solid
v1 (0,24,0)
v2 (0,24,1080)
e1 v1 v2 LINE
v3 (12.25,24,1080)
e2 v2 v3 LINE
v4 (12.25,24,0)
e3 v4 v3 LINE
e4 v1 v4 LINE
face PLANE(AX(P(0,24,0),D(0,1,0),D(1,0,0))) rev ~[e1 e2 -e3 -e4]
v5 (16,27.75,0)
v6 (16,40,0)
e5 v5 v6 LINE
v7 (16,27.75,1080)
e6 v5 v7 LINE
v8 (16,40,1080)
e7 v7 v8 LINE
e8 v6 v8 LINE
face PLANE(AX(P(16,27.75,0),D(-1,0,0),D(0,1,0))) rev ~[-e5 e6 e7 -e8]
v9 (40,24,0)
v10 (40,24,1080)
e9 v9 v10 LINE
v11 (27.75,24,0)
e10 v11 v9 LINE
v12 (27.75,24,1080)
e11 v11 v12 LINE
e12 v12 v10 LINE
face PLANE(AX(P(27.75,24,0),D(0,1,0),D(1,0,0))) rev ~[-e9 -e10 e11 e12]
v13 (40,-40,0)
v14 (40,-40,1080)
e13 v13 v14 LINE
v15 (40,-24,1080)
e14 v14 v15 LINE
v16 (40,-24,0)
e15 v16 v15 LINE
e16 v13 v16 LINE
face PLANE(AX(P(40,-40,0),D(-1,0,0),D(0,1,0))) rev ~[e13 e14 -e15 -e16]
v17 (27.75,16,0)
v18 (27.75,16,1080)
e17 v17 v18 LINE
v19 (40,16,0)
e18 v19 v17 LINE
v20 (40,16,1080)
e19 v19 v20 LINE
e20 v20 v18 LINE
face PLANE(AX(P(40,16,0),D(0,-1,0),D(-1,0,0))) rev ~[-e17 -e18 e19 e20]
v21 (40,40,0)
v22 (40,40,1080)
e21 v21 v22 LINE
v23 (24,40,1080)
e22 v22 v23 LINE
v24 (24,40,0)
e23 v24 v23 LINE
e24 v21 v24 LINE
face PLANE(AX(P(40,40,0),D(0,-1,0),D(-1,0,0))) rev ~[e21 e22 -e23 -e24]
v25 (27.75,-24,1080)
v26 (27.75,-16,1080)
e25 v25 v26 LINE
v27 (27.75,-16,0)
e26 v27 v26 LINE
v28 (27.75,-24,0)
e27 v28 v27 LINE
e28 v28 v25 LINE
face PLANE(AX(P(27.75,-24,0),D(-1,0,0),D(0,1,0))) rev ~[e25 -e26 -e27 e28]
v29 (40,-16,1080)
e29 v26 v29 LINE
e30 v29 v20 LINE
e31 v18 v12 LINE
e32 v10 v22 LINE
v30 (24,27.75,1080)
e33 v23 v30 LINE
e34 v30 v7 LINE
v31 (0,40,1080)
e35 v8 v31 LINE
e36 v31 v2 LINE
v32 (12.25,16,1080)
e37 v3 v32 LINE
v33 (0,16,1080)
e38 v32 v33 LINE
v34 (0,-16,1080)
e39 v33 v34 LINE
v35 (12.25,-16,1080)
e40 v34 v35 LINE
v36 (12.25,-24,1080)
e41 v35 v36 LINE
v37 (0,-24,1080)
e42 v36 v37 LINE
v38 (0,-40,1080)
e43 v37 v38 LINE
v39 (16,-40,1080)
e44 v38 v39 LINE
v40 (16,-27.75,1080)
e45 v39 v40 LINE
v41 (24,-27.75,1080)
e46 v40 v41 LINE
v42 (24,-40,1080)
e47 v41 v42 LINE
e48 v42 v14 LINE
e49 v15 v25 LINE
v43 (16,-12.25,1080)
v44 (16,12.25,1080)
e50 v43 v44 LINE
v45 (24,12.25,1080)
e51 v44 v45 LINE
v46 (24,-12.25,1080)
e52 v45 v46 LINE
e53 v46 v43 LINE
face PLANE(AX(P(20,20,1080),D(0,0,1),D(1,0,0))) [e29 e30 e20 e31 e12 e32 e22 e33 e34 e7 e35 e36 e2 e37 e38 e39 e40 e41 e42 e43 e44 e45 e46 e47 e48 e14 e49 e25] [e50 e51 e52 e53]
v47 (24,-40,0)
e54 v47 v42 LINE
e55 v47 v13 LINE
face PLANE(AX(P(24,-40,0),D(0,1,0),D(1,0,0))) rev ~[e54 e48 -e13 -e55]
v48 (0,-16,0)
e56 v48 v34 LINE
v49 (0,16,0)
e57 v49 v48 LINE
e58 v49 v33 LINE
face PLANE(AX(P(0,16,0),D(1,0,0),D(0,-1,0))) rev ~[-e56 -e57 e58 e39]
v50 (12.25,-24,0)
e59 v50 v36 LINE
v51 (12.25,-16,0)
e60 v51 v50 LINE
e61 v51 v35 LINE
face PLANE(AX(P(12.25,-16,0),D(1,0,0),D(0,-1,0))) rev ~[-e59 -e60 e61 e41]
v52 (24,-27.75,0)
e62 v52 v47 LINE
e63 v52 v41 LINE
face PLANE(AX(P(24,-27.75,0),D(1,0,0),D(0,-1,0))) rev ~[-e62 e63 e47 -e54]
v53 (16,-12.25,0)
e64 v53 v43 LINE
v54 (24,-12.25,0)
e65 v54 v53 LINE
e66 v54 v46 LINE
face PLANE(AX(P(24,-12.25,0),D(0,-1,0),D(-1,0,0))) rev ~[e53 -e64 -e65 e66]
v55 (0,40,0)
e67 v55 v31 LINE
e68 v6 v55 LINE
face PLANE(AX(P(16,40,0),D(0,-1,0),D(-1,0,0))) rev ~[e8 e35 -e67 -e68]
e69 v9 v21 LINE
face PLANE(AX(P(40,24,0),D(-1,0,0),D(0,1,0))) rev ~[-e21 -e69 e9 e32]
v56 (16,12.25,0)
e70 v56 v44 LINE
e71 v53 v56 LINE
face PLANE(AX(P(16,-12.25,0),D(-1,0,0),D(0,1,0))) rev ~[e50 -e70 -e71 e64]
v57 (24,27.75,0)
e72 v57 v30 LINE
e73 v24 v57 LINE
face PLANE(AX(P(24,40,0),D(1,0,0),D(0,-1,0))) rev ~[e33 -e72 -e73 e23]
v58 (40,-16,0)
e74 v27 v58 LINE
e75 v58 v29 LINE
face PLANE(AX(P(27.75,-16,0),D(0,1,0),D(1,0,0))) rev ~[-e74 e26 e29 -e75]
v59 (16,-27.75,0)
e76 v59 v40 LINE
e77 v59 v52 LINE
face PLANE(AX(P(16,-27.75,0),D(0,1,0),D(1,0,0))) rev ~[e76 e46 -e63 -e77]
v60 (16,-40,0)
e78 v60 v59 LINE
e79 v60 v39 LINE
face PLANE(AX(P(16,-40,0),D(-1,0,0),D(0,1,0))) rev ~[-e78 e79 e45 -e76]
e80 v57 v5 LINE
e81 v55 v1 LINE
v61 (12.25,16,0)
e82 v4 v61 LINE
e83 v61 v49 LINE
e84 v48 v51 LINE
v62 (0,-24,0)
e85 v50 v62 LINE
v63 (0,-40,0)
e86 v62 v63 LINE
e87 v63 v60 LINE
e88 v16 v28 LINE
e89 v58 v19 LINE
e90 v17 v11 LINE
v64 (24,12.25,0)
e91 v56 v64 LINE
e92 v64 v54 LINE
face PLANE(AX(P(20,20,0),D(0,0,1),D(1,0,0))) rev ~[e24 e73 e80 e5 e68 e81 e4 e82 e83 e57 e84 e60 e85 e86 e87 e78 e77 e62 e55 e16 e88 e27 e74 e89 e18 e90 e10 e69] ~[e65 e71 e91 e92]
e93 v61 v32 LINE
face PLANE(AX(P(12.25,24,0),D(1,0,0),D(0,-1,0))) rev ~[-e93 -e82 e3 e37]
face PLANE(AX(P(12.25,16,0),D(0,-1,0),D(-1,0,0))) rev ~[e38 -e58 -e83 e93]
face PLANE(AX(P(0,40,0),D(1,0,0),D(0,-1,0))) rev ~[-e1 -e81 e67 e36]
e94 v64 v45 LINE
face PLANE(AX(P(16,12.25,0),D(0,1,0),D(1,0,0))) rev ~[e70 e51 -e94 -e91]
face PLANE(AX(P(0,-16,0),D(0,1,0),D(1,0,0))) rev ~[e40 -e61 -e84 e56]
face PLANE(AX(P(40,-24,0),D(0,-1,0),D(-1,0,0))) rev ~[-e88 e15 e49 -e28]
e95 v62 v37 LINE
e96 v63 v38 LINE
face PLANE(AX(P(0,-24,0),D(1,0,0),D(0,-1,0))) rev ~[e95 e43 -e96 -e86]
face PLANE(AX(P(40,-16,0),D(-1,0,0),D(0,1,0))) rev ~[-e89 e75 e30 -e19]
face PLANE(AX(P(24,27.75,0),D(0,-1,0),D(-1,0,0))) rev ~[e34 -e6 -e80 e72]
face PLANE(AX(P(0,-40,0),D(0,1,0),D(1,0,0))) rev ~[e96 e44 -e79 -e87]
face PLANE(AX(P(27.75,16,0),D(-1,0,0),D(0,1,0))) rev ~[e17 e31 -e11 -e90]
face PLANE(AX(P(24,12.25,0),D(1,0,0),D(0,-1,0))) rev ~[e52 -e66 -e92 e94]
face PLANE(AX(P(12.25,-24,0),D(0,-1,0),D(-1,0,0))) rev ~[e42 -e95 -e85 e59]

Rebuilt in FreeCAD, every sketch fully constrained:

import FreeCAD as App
import Part
import Sketcher
from FreeCAD import Vector


def add_polygon(sketch, points):
    """Adds a closed chain of lines whose ends are joined by coincident constraints."""
    first, n = sketch.GeometryCount, len(points)
    for a, b in zip(points, points[1:] + points[:1]):
        sketch.addGeometry(Part.LineSegment(App.Vector(*a, 0), App.Vector(*b, 0)), False)
    for i in range(n):
        sketch.addConstraint(Sketcher.Constraint("Coincident", first + i, 2, first + (i + 1) % n, 1))

doc = App.newDocument("Part")
body = doc.addObject("PartDesign::Body", "Body")

# Sketch on XY plane
sketch1 = body.newObject("Sketcher::SketchObject", "Sketch")
sketch1.AttachmentSupport = (doc.getObject("XY_Plane"), [""])
sketch1.MapMode = "FlatFace"
add_polygon(sketch1, [(0, 16), (0, -16), (12, -16), (12, -24), (0, -24), (0, -40), (16, -40), (16, -28), (24, -28), (24, -40), (40, -40), (40, -24), (28, -24), (28, -16), (40, -16), (40, 16), (28, 16), (28, 24), (40, 24), (40, 40), (24, 40), (24, 28), (16, 28), (16, 40), (0, 40), (0, 24), (12, 24), (12, 16)])  # lines 0-27
add_polygon(sketch1, [(16, 12), (24, 12), (24, -12), (16, -12)])  # lines 28-31
sketch1.addConstraint(Sketcher.Constraint("Vertical", 0))
sketch1.addConstraint(Sketcher.Constraint("Horizontal", 1))
sketch1.addConstraint(Sketcher.Constraint("Vertical", 2))
sketch1.addConstraint(Sketcher.Constraint("Horizontal", 3))
sketch1.addConstraint(Sketcher.Constraint("Vertical", 4))
sketch1.addConstraint(Sketcher.Constraint("Horizontal", 5))
sketch1.addConstraint(Sketcher.Constraint("Vertical", 6))
sketch1.addConstraint(Sketcher.Constraint("Horizontal", 7))
sketch1.addConstraint(Sketcher.Constraint("Vertical", 8))
sketch1.addConstraint(Sketcher.Constraint("Horizontal", 9))
sketch1.addConstraint(Sketcher.Constraint("Vertical", 10))
sketch1.addConstraint(Sketcher.Constraint("Horizontal", 11))
sketch1.addConstraint(Sketcher.Constraint("Vertical", 12))
sketch1.addConstraint(Sketcher.Constraint("Horizontal", 13))
sketch1.addConstraint(Sketcher.Constraint("Vertical", 14))
sketch1.addConstraint(Sketcher.Constraint("Horizontal", 15))
sketch1.addConstraint(Sketcher.Constraint("Vertical", 16))
sketch1.addConstraint(Sketcher.Constraint("Horizontal", 17))
sketch1.addConstraint(Sketcher.Constraint("Vertical", 18))
sketch1.addConstraint(Sketcher.Constraint("Horizontal", 19))
sketch1.addConstraint(Sketcher.Constraint("Vertical", 20))
sketch1.addConstraint(Sketcher.Constraint("Horizontal", 21))
sketch1.addConstraint(Sketcher.Constraint("Vertical", 22))
sketch1.addConstraint(Sketcher.Constraint("Horizontal", 23))
sketch1.addConstraint(Sketcher.Constraint("Vertical", 24))
sketch1.addConstraint(Sketcher.Constraint("Horizontal", 25))
sketch1.addConstraint(Sketcher.Constraint("Vertical", 26))
sketch1.addConstraint(Sketcher.Constraint("Horizontal", 27))
sketch1.addConstraint(Sketcher.Constraint("Horizontal", 28))
sketch1.addConstraint(Sketcher.Constraint("Vertical", 29))
sketch1.addConstraint(Sketcher.Constraint("Horizontal", 30))
sketch1.addConstraint(Sketcher.Constraint("Vertical", 31))
sketch1.addConstraint(Sketcher.Constraint("Symmetric", 4, 2, 23, 2, -1, 1))
sketch1.addConstraint(Sketcher.Constraint("Symmetric", 0, 2, 27, 2, -1, 1))
sketch1.addConstraint(Sketcher.Constraint("Symmetric", 12, 2, 15, 2, -1))
sketch1.addConstraint(Sketcher.Constraint("Symmetric", 10, 2, 17, 2, -1))
sketch1.addConstraint(Sketcher.Constraint("Symmetric", 8, 2, 19, 2, -1))
sketch1.addConstraint(Sketcher.Constraint("Symmetric", 6, 2, 21, 2, -1))
sketch1.addConstraint(Sketcher.Constraint("Symmetric", 3, 2, 24, 2, -1))
sketch1.addConstraint(Sketcher.Constraint("Horizontal", 5, 2, 8, 2))
sketch1.addConstraint(Sketcher.Constraint("Horizontal", 3, 2, 10, 2))
sketch1.addConstraint(Sketcher.Constraint("Horizontal", 1, 2, 12, 2))
sketch1.addConstraint(Sketcher.Constraint("Vertical", 10, 2, 13, 2))
sketch1.addConstraint(Sketcher.Constraint("Vertical", 2, 2, 25, 2))
sketch1.addConstraint(Sketcher.Constraint("Vertical", 20, 2, 28, 2))
sketch1.addConstraint(Sketcher.Constraint("Vertical", 22, 2, 30, 2))
sketch1.addConstraint(Sketcher.Constraint("Equal", 5, 9))
sketch1.addConstraint(Sketcher.Constraint("Equal", 3, 11))
sketch1.addConstraint(Sketcher.Constraint("Equal", 30, 2))
sketch1.addConstraint(Sketcher.Constraint("Equal", 23, 4))
sketch1.addConstraint(Sketcher.Constraint("Equal", 27, 6))
sketch1.addConstraint(Sketcher.Constraint("DistanceX", 5, 1, 5, 2, 16.0))
sketch1.addConstraint(Sketcher.Constraint("DistanceX", 7, 1, 7, 2, 8.0))
sketch1.addConstraint(Sketcher.Constraint("DistanceY", 0, 2, 0, 1, 32.0))
sketch1.addConstraint(Sketcher.Constraint("DistanceY", 29, 2, 29, 1, 24.5))
sketch1.addConstraint(Sketcher.Constraint("DistanceX", 1, 1, 1, 2, 12.25))
sketch1.addConstraint(Sketcher.Constraint("DistanceY", 28, 2, 20, 2, 15.5))
pad1 = body.newObject("PartDesign::Pad", "Pad")
pad1.Profile = sketch1
pad1.Length = 1080

doc.recompute()
